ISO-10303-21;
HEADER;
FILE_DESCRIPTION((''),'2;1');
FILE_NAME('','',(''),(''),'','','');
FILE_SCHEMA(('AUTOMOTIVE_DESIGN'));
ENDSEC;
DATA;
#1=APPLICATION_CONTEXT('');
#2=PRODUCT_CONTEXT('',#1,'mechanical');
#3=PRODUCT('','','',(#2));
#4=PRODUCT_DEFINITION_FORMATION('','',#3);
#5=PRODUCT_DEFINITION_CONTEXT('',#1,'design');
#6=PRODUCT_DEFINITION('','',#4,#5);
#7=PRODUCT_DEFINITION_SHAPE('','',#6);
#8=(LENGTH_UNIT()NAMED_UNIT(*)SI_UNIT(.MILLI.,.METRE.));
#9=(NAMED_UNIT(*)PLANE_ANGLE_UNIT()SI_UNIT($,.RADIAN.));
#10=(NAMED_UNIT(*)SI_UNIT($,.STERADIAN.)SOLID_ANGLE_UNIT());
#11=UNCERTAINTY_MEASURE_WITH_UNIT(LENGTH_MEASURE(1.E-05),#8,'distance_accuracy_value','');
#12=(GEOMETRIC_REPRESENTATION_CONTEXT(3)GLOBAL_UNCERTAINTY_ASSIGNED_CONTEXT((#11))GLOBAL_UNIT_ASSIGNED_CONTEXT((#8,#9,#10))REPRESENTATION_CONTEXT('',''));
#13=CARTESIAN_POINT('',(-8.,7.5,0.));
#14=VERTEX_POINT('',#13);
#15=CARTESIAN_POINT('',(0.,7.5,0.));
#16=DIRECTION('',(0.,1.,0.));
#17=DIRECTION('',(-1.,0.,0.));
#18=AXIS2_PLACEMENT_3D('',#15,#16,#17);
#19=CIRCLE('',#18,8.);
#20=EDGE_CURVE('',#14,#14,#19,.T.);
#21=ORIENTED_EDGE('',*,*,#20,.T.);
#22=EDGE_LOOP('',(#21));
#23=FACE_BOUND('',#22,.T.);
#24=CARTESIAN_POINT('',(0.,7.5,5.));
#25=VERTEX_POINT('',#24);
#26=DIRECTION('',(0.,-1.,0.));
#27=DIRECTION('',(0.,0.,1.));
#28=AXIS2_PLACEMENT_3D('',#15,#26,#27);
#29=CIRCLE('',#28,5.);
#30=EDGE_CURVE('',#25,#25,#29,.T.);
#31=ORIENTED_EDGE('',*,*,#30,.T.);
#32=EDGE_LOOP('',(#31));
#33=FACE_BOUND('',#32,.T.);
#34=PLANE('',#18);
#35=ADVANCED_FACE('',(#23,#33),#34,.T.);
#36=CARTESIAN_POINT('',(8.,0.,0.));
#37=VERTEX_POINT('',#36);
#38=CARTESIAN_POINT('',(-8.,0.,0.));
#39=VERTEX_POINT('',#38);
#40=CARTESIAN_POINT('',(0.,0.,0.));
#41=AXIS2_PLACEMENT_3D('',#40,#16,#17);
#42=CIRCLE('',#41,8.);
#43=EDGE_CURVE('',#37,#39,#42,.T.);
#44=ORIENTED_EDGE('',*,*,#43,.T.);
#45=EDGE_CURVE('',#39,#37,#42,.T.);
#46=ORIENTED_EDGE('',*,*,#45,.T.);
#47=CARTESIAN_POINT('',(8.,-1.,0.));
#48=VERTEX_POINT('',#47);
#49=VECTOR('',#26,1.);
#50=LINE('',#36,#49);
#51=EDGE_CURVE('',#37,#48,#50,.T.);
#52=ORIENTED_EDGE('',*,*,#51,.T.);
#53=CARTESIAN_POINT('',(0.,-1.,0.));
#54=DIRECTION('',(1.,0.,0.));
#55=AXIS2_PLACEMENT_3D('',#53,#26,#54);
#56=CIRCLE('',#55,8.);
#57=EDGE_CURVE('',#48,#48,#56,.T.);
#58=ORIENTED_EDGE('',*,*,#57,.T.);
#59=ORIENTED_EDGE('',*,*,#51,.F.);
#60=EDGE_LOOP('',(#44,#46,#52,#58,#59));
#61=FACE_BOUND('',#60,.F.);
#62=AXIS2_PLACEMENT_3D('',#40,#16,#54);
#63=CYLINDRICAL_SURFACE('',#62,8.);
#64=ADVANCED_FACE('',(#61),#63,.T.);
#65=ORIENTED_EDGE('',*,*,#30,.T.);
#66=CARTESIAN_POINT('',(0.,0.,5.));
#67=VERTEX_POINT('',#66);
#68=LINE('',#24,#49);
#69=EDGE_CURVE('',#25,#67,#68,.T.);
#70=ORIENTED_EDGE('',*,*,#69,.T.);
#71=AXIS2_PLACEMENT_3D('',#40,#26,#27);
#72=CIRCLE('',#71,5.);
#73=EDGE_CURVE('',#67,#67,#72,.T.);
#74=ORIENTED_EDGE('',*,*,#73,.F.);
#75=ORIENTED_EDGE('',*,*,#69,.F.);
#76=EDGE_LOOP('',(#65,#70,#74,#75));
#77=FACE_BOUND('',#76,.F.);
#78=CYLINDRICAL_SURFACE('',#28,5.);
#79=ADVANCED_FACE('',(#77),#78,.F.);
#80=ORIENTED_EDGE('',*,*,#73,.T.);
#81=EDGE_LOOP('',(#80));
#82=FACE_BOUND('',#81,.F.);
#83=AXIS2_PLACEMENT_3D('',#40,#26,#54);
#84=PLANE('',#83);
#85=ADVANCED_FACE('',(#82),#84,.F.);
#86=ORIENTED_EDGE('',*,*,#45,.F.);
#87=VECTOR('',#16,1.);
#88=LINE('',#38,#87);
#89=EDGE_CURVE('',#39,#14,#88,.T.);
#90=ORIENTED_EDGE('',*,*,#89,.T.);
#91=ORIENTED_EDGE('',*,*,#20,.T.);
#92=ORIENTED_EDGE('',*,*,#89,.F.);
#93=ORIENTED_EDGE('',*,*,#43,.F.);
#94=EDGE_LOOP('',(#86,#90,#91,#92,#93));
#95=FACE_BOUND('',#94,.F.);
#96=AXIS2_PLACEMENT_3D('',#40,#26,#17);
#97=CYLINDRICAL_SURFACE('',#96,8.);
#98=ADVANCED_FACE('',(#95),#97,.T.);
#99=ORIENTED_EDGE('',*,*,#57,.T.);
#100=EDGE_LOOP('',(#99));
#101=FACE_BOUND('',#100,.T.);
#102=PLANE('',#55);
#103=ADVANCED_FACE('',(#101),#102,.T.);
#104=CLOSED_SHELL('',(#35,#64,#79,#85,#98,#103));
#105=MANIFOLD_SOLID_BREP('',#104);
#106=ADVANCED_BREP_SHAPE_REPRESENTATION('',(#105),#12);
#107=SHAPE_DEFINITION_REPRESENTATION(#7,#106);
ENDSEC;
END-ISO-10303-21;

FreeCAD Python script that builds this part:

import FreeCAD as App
import Part
import Sketcher
from FreeCAD import Vector
Q = App.Units.Quantity

doc = App.newDocument("Part")
params = doc.addObject("Spreadsheet::Sheet", "Params")
for row, (alias, value) in enumerate([
    ("sketch1_diameter", "16 mm"),
    ("pad1_length", "7.5 mm"),
    ("sketch2_diameter", "10 mm"),
    ("hole_diameter", "10 mm"),
    ("sketch3_diameter", "16 mm"),
    ("pad2_length", "1 mm"),
], start=1):
    params.set(f"A{row}", alias)
    params.set(f"B{row}", "=" + value)
    params.setAlias(f"B{row}", alias)

body = doc.addObject("PartDesign::Body", "Body")

# Sketch on XZ plane
sketch1 = body.newObject("Sketcher::SketchObject", "Sketch")
sketch1.AttachmentSupport = (doc.getObject("XZ_Plane"), [""])
sketch1.MapMode = "FlatFace"
sketch1.addGeometry(Part.Circle(Vector(0, 0, 0), Vector(0, 0, 1), 8), False)
sketch1.addConstraint([
    Sketcher.Constraint("Coincident", 0, 3, -1, 1),
    Sketcher.Constraint("Diameter", 0, Q("16 mm")),
])
sketch1.setExpression("Constraints[1]", "Params.sketch1_diameter")
pad1 = body.newObject("PartDesign::Pad", "Pad")
pad1.Profile = sketch1
pad1.setExpression("Length", "Params.pad1_length")
pad1.Reversed = True

# Sketch on XZ plane
sketch2 = body.newObject("Sketcher::SketchObject", "Sketch001")
sketch2.AttachmentSupport = (doc.getObject("XZ_Plane"), [""])
sketch2.MapMode = "FlatFace"
sketch2.AttachmentOffset = App.Placement(Vector(0, 0, -7.5), App.Rotation())
sketch2.addGeometry(Part.Circle(Vector(0, 0, 0), Vector(0, 0, 1), 5), False)
sketch2.addConstraint([
    Sketcher.Constraint("Coincident", 0, 3, -1, 1),
    Sketcher.Constraint("Diameter", 0, Q("10 mm")),
])
sketch2.setExpression("Constraints[1]", "Params.sketch2_diameter")
doc.recompute()
hole = body.newObject("PartDesign::Hole", "Hole")
hole.Profile = sketch2
hole.ThreadType = "None"
hole.setExpression("Diameter", "Params.hole_diameter")
hole.DepthType = "ThroughAll"
hole.Reversed = True

# Sketch on XZ plane
sketch3 = body.newObject("Sketcher::SketchObject", "Sketch002")
sketch3.AttachmentSupport = (doc.getObject("XZ_Plane"), [""])
sketch3.MapMode = "FlatFace"
sketch3.addGeometry(Part.Circle(Vector(0, 0, 0), Vector(0, 0, 1), 8), False)
sketch3.addConstraint([
    Sketcher.Constraint("Coincident", 0, 3, -1, 1),
    Sketcher.Constraint("Diameter", 0, Q("16 mm")),
])
sketch3.setExpression("Constraints[1]", "Params.sketch3_diameter")
pad2 = body.newObject("PartDesign::Pad", "Pad001")
pad2.Profile = sketch3
pad2.setExpression("Length", "Params.pad2_length")

doc.recompute()
